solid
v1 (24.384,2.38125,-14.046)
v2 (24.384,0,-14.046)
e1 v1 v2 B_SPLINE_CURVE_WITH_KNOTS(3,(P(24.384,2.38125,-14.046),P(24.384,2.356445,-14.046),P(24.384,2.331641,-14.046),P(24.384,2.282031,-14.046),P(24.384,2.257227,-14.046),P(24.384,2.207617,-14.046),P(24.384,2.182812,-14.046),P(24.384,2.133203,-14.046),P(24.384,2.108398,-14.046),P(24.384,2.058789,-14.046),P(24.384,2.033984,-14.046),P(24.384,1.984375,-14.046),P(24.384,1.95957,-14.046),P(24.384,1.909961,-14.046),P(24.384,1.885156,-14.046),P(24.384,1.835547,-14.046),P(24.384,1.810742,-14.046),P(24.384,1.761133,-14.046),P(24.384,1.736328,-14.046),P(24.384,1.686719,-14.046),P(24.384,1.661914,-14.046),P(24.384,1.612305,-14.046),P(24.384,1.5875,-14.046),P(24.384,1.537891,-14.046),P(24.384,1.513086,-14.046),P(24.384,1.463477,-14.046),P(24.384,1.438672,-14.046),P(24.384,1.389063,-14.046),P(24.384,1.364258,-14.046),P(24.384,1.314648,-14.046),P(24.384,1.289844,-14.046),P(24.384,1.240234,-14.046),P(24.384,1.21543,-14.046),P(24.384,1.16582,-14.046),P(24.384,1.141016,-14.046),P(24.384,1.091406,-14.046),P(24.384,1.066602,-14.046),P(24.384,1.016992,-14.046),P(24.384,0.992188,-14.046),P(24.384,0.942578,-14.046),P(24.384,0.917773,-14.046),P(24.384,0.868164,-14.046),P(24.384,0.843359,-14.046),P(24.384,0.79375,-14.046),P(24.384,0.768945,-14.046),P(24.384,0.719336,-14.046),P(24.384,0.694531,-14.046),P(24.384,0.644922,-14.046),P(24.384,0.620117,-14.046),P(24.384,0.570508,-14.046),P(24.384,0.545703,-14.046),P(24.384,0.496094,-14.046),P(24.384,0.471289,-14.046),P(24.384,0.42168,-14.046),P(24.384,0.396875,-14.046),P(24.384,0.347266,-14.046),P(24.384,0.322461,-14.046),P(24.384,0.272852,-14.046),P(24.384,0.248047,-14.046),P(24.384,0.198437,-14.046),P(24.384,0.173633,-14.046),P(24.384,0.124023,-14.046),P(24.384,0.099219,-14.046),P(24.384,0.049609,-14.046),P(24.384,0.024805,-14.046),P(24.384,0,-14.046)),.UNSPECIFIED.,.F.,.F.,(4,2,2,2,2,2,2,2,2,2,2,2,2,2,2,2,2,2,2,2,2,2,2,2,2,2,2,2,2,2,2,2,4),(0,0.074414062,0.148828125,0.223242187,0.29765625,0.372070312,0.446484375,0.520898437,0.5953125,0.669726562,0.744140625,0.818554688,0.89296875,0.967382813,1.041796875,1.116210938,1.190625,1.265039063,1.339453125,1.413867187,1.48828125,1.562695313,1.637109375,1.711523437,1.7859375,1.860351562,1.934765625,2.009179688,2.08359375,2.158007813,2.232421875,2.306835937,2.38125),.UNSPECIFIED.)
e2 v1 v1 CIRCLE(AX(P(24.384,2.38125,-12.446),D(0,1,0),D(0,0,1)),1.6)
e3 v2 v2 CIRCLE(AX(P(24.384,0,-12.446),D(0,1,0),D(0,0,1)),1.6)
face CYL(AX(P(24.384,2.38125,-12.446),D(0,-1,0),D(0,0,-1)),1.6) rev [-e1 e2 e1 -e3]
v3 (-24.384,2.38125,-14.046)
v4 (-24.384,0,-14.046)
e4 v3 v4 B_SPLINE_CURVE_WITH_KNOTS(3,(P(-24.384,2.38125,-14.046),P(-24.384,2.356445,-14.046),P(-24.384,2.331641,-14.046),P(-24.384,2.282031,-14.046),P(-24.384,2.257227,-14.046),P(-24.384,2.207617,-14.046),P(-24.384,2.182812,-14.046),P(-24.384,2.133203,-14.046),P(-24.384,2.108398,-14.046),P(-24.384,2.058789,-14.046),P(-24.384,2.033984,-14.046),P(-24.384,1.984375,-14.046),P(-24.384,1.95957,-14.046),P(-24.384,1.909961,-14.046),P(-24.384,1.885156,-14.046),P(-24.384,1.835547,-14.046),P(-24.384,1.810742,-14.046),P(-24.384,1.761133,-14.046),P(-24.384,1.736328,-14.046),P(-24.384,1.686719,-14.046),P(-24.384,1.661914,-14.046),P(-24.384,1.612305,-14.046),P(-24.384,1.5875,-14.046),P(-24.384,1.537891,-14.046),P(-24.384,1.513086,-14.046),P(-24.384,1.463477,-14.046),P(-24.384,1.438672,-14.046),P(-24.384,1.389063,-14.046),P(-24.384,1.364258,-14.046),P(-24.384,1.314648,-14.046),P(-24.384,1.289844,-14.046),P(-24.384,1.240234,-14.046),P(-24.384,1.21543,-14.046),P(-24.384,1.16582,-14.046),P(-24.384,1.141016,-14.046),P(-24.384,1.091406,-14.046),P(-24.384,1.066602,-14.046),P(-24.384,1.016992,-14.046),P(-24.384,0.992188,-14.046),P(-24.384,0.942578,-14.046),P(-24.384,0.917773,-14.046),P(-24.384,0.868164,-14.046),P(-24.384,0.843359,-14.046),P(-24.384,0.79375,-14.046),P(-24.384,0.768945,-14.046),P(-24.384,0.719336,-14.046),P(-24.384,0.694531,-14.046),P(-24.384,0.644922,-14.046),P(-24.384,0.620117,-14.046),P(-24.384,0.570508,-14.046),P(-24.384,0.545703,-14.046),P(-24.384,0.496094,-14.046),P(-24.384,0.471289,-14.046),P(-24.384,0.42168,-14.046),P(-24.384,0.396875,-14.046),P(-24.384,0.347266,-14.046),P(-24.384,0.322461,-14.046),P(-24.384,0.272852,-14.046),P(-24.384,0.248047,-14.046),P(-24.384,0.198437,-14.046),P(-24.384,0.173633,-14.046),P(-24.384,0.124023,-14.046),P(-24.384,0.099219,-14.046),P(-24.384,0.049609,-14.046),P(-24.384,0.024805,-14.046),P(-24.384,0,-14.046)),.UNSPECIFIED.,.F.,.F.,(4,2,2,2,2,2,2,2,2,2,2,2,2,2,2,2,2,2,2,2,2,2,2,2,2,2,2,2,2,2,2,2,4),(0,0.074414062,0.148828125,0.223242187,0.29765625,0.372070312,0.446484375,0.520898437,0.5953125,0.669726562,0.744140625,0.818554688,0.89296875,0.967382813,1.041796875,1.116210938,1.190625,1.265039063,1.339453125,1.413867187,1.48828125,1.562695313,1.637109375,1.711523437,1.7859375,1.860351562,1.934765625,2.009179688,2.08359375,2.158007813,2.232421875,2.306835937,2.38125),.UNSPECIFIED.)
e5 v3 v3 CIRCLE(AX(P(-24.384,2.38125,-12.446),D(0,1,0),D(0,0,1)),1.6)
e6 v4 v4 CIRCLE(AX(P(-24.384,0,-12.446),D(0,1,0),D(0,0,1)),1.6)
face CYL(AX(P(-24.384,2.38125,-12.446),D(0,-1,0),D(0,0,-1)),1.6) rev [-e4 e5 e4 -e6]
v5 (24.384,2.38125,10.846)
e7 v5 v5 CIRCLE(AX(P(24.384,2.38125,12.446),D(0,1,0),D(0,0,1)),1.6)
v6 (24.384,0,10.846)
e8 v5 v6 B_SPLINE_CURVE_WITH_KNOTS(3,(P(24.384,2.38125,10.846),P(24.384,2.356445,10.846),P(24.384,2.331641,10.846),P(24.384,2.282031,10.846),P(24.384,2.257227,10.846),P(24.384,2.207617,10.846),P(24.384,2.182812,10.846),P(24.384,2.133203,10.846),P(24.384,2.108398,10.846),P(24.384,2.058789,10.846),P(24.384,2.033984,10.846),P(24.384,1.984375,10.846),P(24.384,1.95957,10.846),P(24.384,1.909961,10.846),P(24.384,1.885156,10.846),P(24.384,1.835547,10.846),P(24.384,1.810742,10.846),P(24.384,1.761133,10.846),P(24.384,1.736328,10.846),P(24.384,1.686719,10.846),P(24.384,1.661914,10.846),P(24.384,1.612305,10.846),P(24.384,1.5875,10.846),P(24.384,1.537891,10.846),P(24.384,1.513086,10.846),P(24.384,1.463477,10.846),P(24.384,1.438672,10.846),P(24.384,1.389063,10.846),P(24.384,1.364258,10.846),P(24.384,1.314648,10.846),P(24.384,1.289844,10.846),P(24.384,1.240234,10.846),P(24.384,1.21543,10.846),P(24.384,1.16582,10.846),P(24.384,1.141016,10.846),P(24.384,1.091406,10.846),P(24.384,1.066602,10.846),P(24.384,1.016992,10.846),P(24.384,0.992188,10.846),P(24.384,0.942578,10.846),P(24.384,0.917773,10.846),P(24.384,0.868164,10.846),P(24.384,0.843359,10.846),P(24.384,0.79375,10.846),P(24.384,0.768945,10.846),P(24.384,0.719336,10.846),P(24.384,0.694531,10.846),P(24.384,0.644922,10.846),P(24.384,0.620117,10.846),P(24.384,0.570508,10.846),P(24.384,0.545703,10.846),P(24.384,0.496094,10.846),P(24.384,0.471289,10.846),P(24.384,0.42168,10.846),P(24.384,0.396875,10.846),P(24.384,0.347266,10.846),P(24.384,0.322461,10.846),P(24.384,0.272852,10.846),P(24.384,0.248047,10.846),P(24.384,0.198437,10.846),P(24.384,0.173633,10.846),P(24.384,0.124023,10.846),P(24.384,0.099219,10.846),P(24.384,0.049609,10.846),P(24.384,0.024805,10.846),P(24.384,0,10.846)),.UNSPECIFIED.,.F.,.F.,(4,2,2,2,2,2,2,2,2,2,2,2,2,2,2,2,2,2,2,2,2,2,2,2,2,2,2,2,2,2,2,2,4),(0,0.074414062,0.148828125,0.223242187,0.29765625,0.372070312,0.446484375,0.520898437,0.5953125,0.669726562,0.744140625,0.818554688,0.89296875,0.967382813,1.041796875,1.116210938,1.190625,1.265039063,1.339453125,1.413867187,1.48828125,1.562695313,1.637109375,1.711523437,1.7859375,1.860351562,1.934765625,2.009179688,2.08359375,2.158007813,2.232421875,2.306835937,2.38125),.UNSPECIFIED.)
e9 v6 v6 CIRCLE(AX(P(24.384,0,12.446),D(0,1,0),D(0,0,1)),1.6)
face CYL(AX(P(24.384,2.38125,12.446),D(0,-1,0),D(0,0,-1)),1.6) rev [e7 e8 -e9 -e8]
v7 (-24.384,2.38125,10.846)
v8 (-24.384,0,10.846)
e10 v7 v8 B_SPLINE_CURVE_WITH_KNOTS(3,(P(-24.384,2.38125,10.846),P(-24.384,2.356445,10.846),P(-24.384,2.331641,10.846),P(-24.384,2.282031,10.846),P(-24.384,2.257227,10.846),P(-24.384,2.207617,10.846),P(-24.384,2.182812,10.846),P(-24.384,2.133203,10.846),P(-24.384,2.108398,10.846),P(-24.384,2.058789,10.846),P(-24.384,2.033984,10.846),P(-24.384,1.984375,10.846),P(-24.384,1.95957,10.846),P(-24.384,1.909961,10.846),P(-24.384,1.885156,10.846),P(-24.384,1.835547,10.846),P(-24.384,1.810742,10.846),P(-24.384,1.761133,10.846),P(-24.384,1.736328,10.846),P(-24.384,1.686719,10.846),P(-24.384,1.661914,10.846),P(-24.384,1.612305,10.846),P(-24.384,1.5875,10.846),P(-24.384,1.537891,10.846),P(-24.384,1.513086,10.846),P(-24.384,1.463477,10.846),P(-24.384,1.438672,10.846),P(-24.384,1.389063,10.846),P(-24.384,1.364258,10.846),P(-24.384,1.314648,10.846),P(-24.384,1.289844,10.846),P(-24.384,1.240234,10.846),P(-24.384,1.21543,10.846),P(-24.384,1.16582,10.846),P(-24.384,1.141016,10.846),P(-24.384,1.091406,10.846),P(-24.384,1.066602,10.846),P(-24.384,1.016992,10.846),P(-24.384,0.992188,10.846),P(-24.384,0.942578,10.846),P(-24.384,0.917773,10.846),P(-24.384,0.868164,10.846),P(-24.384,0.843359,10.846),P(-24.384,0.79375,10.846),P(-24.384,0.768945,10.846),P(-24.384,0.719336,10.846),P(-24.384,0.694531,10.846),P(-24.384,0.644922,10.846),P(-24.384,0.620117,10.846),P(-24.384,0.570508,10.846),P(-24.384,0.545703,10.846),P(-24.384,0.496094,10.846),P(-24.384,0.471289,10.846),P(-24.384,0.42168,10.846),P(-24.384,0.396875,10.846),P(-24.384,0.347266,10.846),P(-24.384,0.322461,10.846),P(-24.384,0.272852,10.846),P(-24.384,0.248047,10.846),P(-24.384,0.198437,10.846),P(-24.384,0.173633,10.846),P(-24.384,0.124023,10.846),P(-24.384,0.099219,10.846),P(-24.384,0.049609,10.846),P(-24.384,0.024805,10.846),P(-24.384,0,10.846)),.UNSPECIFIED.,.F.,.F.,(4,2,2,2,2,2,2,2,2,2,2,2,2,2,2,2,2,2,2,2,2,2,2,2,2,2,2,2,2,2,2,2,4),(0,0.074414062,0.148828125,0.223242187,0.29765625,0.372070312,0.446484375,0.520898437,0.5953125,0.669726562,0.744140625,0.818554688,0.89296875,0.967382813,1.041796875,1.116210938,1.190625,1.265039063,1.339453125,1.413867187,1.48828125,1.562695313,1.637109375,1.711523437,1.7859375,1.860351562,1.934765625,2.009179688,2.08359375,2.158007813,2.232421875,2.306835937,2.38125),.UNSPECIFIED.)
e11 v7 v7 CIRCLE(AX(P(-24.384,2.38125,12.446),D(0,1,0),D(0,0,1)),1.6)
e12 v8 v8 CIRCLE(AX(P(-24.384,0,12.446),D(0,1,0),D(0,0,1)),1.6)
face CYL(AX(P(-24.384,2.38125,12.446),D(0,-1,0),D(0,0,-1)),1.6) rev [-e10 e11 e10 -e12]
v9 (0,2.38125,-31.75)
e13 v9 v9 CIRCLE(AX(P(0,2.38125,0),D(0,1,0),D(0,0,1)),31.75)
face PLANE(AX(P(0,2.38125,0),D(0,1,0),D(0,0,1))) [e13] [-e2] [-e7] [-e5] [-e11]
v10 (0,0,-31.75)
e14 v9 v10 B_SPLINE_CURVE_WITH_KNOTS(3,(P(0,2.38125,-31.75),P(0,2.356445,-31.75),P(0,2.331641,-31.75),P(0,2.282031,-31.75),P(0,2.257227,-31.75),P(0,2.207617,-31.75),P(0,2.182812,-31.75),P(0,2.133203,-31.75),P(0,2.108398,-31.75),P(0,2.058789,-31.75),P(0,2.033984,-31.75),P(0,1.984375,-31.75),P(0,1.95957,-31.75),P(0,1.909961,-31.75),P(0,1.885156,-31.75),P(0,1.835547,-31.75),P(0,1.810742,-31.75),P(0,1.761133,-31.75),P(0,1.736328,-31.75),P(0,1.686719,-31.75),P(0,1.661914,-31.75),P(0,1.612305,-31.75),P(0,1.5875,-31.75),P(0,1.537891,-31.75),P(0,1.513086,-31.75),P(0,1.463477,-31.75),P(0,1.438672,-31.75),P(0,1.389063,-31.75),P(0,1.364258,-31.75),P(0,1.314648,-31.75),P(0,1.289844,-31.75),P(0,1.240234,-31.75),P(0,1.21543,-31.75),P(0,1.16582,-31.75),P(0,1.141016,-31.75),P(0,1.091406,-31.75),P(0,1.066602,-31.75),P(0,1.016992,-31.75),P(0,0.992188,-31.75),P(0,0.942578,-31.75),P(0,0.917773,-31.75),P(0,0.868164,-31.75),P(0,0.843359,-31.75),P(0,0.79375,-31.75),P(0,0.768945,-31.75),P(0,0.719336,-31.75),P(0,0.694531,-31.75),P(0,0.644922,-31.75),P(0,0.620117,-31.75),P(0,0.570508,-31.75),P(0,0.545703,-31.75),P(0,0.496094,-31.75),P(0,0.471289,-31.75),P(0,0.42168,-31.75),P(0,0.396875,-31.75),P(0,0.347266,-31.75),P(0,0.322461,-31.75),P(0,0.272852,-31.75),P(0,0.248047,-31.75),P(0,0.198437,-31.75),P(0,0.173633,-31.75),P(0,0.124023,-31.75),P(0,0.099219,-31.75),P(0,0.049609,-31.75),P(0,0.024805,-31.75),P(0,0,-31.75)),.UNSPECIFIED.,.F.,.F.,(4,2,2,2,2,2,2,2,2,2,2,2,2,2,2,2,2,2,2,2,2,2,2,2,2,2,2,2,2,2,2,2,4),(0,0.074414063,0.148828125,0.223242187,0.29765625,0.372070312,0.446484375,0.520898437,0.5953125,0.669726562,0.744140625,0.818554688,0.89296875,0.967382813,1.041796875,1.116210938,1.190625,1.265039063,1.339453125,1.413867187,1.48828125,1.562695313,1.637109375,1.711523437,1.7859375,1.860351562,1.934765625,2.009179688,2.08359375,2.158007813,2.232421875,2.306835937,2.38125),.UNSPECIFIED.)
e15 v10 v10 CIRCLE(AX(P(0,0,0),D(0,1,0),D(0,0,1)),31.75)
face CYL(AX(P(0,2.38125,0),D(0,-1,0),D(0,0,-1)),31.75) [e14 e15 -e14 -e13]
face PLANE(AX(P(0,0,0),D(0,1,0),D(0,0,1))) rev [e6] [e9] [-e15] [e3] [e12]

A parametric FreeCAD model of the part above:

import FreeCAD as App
import Part
import Sketcher
from FreeCAD import Vector
Q = App.Units.Quantity

doc = App.newDocument("Part")
body = doc.addObject("PartDesign::Body", "Body")

# Sketch on XZ plane
sketch1 = body.newObject("Sketcher::SketchObject", "Sketch")
sketch1.AttachmentSupport = (doc.getObject("XZ_Plane"), [""])
sketch1.MapMode = "FlatFace"
sketch1.addGeometry(Part.Circle(Vector(0, 0, 0), Vector(0, 0, 1), 31.8), False)
sketch1.addGeometry(Part.Circle(Vector(24.4, 12.4, 0), Vector(0, 0, 1), 1.6), False)
sketch1.addGeometry(Part.Circle(Vector(24.4, -12.4, 0), Vector(0, 0, 1), 1.6), False)
sketch1.addGeometry(Part.Circle(Vector(-24.4, 12.4, 0), Vector(0, 0, 1), 1.6), False)
sketch1.addGeometry(Part.Circle(Vector(-24.4, -12.4, 0), Vector(0, 0, 1), 1.6), False)
sketch1.addConstraint(Sketcher.Constraint("Coincident", 0, 3, -1, 1))
sketch1.addConstraint(Sketcher.Constraint("Equal", 1, 2))
sketch1.addConstraint(Sketcher.Constraint("Equal", 2, 3))
sketch1.addConstraint(Sketcher.Constraint("Equal", 3, 4))
sketch1.addConstraint(Sketcher.Constraint("Symmetric", 2, 3, 3, 3, -1, 1))
sketch1.addConstraint(Sketcher.Constraint("Symmetric", 1, 3, 4, 3, -1, 1))
sketch1.addConstraint(Sketcher.Constraint("Symmetric", 1, 3, 3, 3, -2))
sketch1.addConstraint(Sketcher.Constraint("Diameter", 0, Q("2.5 in")))
sketch1.addConstraint(Sketcher.Constraint("Diameter", 1, Q("3.2 mm")))
sketch1.addConstraint(Sketcher.Constraint("DistanceX", -1, 1, 1, 3, Q("0.96 in")))
sketch1.addConstraint(Sketcher.Constraint("DistanceY", -1, 1, 1, 3, Q("0.49 in")))
pad1 = body.newObject("PartDesign::Pad", "Pad")
pad1.Profile = sketch1
pad1.Length = Q("0.09375 in")
pad1.Reversed = True

doc.recompute()
